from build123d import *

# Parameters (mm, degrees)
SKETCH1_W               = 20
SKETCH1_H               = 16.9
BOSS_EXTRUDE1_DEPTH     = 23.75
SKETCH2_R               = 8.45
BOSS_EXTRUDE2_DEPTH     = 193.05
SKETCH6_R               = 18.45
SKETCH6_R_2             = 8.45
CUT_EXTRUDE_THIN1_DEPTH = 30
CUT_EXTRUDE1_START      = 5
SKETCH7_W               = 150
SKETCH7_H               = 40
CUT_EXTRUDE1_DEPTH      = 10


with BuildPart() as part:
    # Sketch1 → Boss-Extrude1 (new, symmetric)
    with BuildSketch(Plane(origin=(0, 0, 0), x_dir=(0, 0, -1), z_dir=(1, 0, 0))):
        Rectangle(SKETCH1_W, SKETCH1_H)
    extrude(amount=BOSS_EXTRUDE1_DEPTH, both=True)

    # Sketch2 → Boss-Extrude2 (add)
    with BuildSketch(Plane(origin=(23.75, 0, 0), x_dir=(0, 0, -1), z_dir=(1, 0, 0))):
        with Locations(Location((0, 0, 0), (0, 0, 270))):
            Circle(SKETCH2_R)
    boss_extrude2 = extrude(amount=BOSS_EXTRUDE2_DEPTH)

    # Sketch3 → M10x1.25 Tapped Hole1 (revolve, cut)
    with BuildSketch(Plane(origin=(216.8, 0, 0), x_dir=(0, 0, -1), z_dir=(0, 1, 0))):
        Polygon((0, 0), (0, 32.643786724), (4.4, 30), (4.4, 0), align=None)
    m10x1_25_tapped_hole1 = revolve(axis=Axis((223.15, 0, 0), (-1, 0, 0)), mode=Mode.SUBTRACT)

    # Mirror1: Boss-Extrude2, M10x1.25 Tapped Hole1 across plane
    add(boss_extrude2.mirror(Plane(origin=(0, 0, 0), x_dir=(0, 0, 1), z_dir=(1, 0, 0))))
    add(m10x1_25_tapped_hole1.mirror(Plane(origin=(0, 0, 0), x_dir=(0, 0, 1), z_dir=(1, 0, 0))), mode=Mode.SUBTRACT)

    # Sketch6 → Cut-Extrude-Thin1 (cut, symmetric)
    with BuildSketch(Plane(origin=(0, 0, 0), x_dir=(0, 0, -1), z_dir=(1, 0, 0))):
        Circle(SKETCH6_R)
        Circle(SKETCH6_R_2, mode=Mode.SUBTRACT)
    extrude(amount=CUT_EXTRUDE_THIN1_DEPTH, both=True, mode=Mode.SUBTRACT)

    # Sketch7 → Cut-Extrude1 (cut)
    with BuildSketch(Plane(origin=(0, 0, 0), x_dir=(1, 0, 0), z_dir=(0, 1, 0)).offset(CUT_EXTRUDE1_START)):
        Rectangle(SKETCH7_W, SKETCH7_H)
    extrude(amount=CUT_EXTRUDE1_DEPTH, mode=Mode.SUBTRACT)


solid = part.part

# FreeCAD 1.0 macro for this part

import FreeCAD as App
import Part
import Sketcher

V = App.Vector
Q = App.Units.Quantity

doc = App.newDocument("Part")
body = doc.addObject("PartDesign::Body", "Body")

# Sketch on YZ plane
sketch1 = body.newObject("Sketcher::SketchObject", "Sketch")
sketch1.AttachmentSupport = (doc.getObject("YZ_Plane"), [""])
sketch1.MapMode = "FlatFace"
sketch1.addGeometry([
    Part.LineSegment(V(8.45, 10, 0), V(-8.45, 10, 0)),
    Part.LineSegment(V(-8.45, 10, 0), V(-8.45, -10, 0)),
    Part.LineSegment(V(-8.45, -10, 0), V(8.45, -10, 0)),
    Part.LineSegment(V(8.45, -10, 0), V(8.45, 10, 0)),
], False)
sketch1.addConstraint([
    Sketcher.Constraint("Coincident", 0, 2, 1, 1),
    Sketcher.Constraint("Coincident", 1, 2, 2, 1),
    Sketcher.Constraint("Coincident", 2, 2, 3, 1),
    Sketcher.Constraint("Coincident", 3, 2, 0, 1),
    Sketcher.Constraint("Horizontal", 0),
    Sketcher.Constraint("Vertical", 1),
    Sketcher.Constraint("Horizontal", 2),
    Sketcher.Constraint("Vertical", 3),
    Sketcher.Constraint("Symmetric", 0, 2, 2, 2, -1, 1),
    Sketcher.Constraint("DistanceY", 1, 2, 1, 1, Q("20 mm")),
    Sketcher.Constraint("DistanceX", 0, 2, 0, 1, Q("16.9 mm")),
])
pad1 = body.newObject("PartDesign::Pad", "Pad")
pad1.Profile = sketch1
pad1.Length = 47.5
pad1.Midplane = True

# Sketch on YZ plane
sketch2 = body.newObject("Sketcher::SketchObject", "Sketch001")
sketch2.AttachmentSupport = (doc.getObject("YZ_Plane"), [""])
sketch2.MapMode = "FlatFace"
sketch2.AttachmentOffset = App.Placement(V(0, 0, 23.75), App.Rotation())
sketch2.addGeometry(Part.Circle(V(0, 0, 0), V(0, 0, 1), 8.45), False)
sketch2.addConstraint([
    Sketcher.Constraint("Coincident", 0, 3, -1, 1),
    Sketcher.Constraint("Diameter", 0, Q("16.9 mm")),
])
pad2 = body.newObject("PartDesign::Pad", "Pad001")
pad2.Profile = sketch2
pad2.Length = 193.05

# Sketch on XZ plane
sketch3 = body.newObject("Sketcher::SketchObject", "Sketch002")
sketch3.AttachmentSupport = (doc.getObject("XZ_Plane"), [""])
sketch3.MapMode = "FlatFace"
sketch3.addGeometry([
    Part.LineSegment(V(184.156213, 0, 0), V(216.8, 0, 0)),
    Part.LineSegment(V(216.8, 0, 0), V(216.8, -4.4, 0)),
    Part.LineSegment(V(216.8, -4.4, 0), V(186.8, -4.4, 0)),
    Part.LineSegment(V(186.8, -4.4, 0), V(184.156213, 0, 0)),
], False)
sketch3.addConstraint([
    Sketcher.Constraint("Coincident", 0, 2, 1, 1),
    Sketcher.Constraint("Coincident", 1, 2, 2, 1),
    Sketcher.Constraint("Coincident", 2, 2, 3, 1),
    Sketcher.Constraint("Coincident", 3, 2, 0, 1),
    Sketcher.Constraint("Horizontal", 0),
    Sketcher.Constraint("Vertical", 1),
    Sketcher.Constraint("Horizontal", 2),
    Sketcher.Constraint("PointOnObject", 0, 2, -1),
    Sketcher.Constraint("DistanceX", 2, 2, 2, 1, Q("30 mm")),
    Sketcher.Constraint("Angle", 3, Q("121 deg")),
    Sketcher.Constraint("DistanceY", 1, 2, 1, 1, Q("4.4 mm")),
    Sketcher.Constraint("DistanceX", -1, 1, 0, 2, Q("216.8 mm")),
])
groove = body.newObject("PartDesign::Groove", "Groove")
groove.Profile = sketch3
groove.ReferenceAxis = (sketch3, ["H_Axis"])
groove.Angle = 360
doc.recompute()

mirrored = body.newObject("PartDesign::Mirrored", "Mirrored")
mirrored.Originals = [pad2, groove]
mirrored.MirrorPlane = (doc.getObject("YZ_Plane"), [""])
body.Tip = mirrored

# Sketch on YZ plane
sketch4 = body.newObject("Sketcher::SketchObject", "Sketch003")
sketch4.AttachmentSupport = (doc.getObject("YZ_Plane"), [""])
sketch4.MapMode = "FlatFace"
sketch4.addGeometry([
    Part.Circle(V(0, 0, 0), V(0, 0, 1), 18.45),
    Part.Circle(V(0, 0, 0), V(0, 0, 1), 8.45),
], False)
sketch4.addConstraint([
    Sketcher.Constraint("Coincident", 0, 3, -1, 1),
    Sketcher.Constraint("Coincident", 1, 3, -1, 1),
    Sketcher.Constraint("Diameter", 0, Q("36.9 mm")),
    Sketcher.Constraint("Diameter", 1, Q("16.9 mm")),
])
pocket1 = body.newObject("PartDesign::Pocket", "Pocket")
pocket1.Profile = sketch4
pocket1.Length = 60
pocket1.Midplane = True

# Sketch on XZ plane
sketch5 = body.newObject("Sketcher::SketchObject", "Sketch004")
sketch5.AttachmentSupport = (doc.getObject("XZ_Plane"), [""])
sketch5.MapMode = "FlatFace"
sketch5.AttachmentOffset = App.Placement(V(0, 0, -5), App.Rotation())
sketch5.addGeometry([
    Part.LineSegment(V(-75, -20, 0), V(-75, 20, 0)),
    Part.LineSegment(V(-75, 20, 0), V(75, 20, 0)),
    Part.LineSegment(V(75, 20, 0), V(75, -20, 0)),
    Part.LineSegment(V(75, -20, 0), V(-75, -20, 0)),
], False)
sketch5.addConstraint([
    Sketcher.Constraint("Coincident", 0, 2, 1, 1),
    Sketcher.Constraint("Coincident", 1, 2, 2, 1),
    Sketcher.Constraint("Coincident", 2, 2, 3, 1),
    Sketcher.Constraint("Coincident", 3, 2, 0, 1),
    Sketcher.Constraint("Vertical", 0),
    Sketcher.Constraint("Horizontal", 1),
    Sketcher.Constraint("Vertical", 2),
    Sketcher.Constraint("Horizontal", 3),
    Sketcher.Constraint("Symmetric", 0, 2, 2, 2, -1, 1),
    Sketcher.Constraint("DistanceX", 1, 1, 1, 2, Q("150 mm")),
    Sketcher.Constraint("DistanceY", 0, 1, 0, 2, Q("40 mm")),
])
pocket2 = body.newObject("PartDesign::Pocket", "Pocket001")
pocket2.Profile = sketch5
pocket2.Length = 10

doc.recompute()
